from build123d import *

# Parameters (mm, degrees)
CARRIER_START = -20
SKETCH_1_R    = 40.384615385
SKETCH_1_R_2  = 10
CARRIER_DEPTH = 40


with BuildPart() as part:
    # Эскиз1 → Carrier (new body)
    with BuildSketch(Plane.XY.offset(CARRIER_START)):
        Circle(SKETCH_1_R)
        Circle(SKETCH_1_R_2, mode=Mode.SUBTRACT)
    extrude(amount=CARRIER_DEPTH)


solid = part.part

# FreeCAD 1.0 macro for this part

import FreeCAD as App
import Part
import Sketcher

V = App.Vector

doc = App.newDocument("Part")
body = doc.addObject("PartDesign::Body", "Body")

# Sketch on XY plane
sketch1 = body.newObject("Sketcher::SketchObject", "Sketch")
sketch1.AttachmentSupport = (doc.getObject("XY_Plane"), [""])
sketch1.MapMode = "FlatFace"
sketch1.AttachmentOffset = App.Placement(V(0, 0, -20), App.Rotation())
sketch1.addGeometry(Part.Circle(V(0, 0, 0), V(0, 0, 1), 40), False)
sketch1.addGeometry(Part.Circle(V(0, 0, 0), V(0, 0, 1), 10), False)
sketch1.addConstraint(Sketcher.Constraint("Coincident", 0, 3, -1, 1))
sketch1.addConstraint(Sketcher.Constraint("Coincident", 1, 3, -1, 1))
sketch1.addConstraint(Sketcher.Constraint("Diameter", 1, 20.0))
sketch1.addConstraint(Sketcher.Constraint("Diameter", 0, 80.769231))
pad1 = body.newObject("PartDesign::Pad", "Pad")
pad1.Profile = sketch1
pad1.Length = 40

doc.recompute()
